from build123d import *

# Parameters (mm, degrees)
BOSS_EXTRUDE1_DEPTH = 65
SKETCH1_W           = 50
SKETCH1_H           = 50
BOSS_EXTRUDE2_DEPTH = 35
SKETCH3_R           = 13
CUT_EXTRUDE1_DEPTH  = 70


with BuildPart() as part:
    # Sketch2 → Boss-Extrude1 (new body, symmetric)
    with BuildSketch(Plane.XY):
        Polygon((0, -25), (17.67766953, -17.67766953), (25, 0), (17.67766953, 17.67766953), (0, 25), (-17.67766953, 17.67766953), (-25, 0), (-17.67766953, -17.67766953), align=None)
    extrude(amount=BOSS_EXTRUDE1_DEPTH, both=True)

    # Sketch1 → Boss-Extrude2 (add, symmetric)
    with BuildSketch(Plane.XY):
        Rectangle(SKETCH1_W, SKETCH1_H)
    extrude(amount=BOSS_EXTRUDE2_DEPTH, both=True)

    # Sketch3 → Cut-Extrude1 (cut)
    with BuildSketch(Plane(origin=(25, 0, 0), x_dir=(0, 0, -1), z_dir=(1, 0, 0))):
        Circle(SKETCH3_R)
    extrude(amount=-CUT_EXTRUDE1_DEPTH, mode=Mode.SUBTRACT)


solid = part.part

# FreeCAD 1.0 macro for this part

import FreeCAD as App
import Part
import Sketcher
Q = App.Units.Quantity

doc = App.newDocument("Part")
params = doc.addObject("Spreadsheet::Sheet", "Params")
for row, (alias, value) in enumerate([
    ("pad1_length", "130 mm"),
    ("sketch2_width", "50 mm"),
    ("pad2_length", "70 mm"),
    ("sketch3_diameter", "26 mm"),
    ("pocket1_length", "70 mm"),
], start=1):
    params.set(f"A{row}", alias)
    params.set(f"B{row}", "=" + value)
    params.setAlias(f"B{row}", alias)

body = doc.addObject("PartDesign::Body", "Body")

sketch1 = doc.addObject("Sketcher::SketchObject", "Sketch")
body.addObject(sketch1)
sketch1.AttachmentSupport = (doc.XY_Plane, [""])
sketch1.MapMode = "FlatFace"
sketch1.addGeometry(Part.LineSegment(App.Vector(0, -25, 0), App.Vector(17.67767, -17.67767, 0)), False)
sketch1.addGeometry(Part.LineSegment(App.Vector(17.67767, -17.67767, 0), App.Vector(25, 0, 0)), False)
sketch1.addGeometry(Part.LineSegment(App.Vector(25, 0, 0), App.Vector(17.67767, 17.67767, 0)), False)
sketch1.addGeometry(Part.LineSegment(App.Vector(17.67767, 17.67767, 0), App.Vector(0, 25, 0)), False)
sketch1.addGeometry(Part.LineSegment(App.Vector(0, 25, 0), App.Vector(-17.67767, 17.67767, 0)), False)
sketch1.addGeometry(Part.LineSegment(App.Vector(-17.67767, 17.67767, 0), App.Vector(-25, 0, 0)), False)
sketch1.addGeometry(Part.LineSegment(App.Vector(-25, 0, 0), App.Vector(-17.67767, -17.67767, 0)), False)
sketch1.addGeometry(Part.LineSegment(App.Vector(-17.67767, -17.67767, 0), App.Vector(0, -25, 0)), False)
sketch1.addConstraint(Sketcher.Constraint("Coincident", 0, 2, 1, 1))
sketch1.addConstraint(Sketcher.Constraint("Coincident", 1, 2, 2, 1))
sketch1.addConstraint(Sketcher.Constraint("Coincident", 2, 2, 3, 1))
sketch1.addConstraint(Sketcher.Constraint("Coincident", 3, 2, 4, 1))
sketch1.addConstraint(Sketcher.Constraint("Coincident", 4, 2, 5, 1))
sketch1.addConstraint(Sketcher.Constraint("Coincident", 5, 2, 6, 1))
sketch1.addConstraint(Sketcher.Constraint("Coincident", 6, 2, 7, 1))
sketch1.addConstraint(Sketcher.Constraint("Coincident", 7, 2, 0, 1))
sketch1.addConstraint(Sketcher.Constraint("Symmetric", 0, 2, 4, 2, -1, 1))
sketch1.addConstraint(Sketcher.Constraint("Symmetric", 1, 2, 5, 2, -1, 1))
sketch1.addConstraint(Sketcher.Constraint("Symmetric", 2, 2, 6, 2, -1, 1))
sketch1.addConstraint(Sketcher.Constraint("Symmetric", 3, 2, 7, 2, -1, 1))
sketch1.addConstraint(Sketcher.Constraint("Symmetric", 2, 2, 4, 2, -2))
sketch1.addConstraint(Sketcher.Constraint("PointOnObject", 1, 2, -1))
sketch1.addConstraint(Sketcher.Constraint("PointOnObject", 3, 2, -2))
sketch1.addConstraint(Sketcher.Constraint("Perpendicular", 0, 2))
sketch1.addConstraint(Sketcher.Constraint("Equal", 0, 1))
sketch1.addConstraint(Sketcher.Constraint("DistanceX", -1, 1, 1, 2, 25.0))
sketch1.addConstraint(Sketcher.Constraint("Angle", 0, Q("22.5 deg")))
pad1 = doc.addObject("PartDesign::Pad", "Pad")
body.addObject(pad1)
pad1.Profile = sketch1
pad1.setExpression("Length", "Params.pad1_length")
pad1.Midplane = True

sketch2 = doc.addObject("Sketcher::SketchObject", "Sketch001")
body.addObject(sketch2)
sketch2.AttachmentSupport = (doc.XY_Plane, [""])
sketch2.MapMode = "FlatFace"
sketch2.addGeometry(Part.LineSegment(App.Vector(-25, 25, 0), App.Vector(-25, -25, 0)), False)
sketch2.addGeometry(Part.LineSegment(App.Vector(-25, -25, 0), App.Vector(25, -25, 0)), False)
sketch2.addGeometry(Part.LineSegment(App.Vector(25, -25, 0), App.Vector(25, 25, 0)), False)
sketch2.addGeometry(Part.LineSegment(App.Vector(25, 25, 0), App.Vector(-25, 25, 0)), False)
sketch2.addConstraint(Sketcher.Constraint("Coincident", 0, 2, 1, 1))
sketch2.addConstraint(Sketcher.Constraint("Coincident", 1, 2, 2, 1))
sketch2.addConstraint(Sketcher.Constraint("Coincident", 2, 2, 3, 1))
sketch2.addConstraint(Sketcher.Constraint("Coincident", 3, 2, 0, 1))
sketch2.addConstraint(Sketcher.Constraint("Vertical", 0))
sketch2.addConstraint(Sketcher.Constraint("Horizontal", 1))
sketch2.addConstraint(Sketcher.Constraint("Vertical", 2))
sketch2.addConstraint(Sketcher.Constraint("Horizontal", 3))
sketch2.addConstraint(Sketcher.Constraint("Symmetric", 0, 2, 2, 2, -1, 1))
sketch2.addConstraint(Sketcher.Constraint("Equal", 3, 0))
sketch2.addConstraint(Sketcher.Constraint("DistanceX", 1, 1, 1, 2, 50.0))
sketch2.setExpression("Constraints[10]", "Params.sketch2_width")
pad2 = doc.addObject("PartDesign::Pad", "Pad001")
body.addObject(pad2)
pad2.Profile = sketch2
pad2.setExpression("Length", "Params.pad2_length")
pad2.Midplane = True

sketch3 = doc.addObject("Sketcher::SketchObject", "Sketch002")
body.addObject(sketch3)
sketch3.AttachmentSupport = (doc.YZ_Plane, [""])
sketch3.MapMode = "FlatFace"
sketch3.AttachmentOffset = App.Placement(App.Vector(0, 0, 25), App.Rotation())
sketch3.addGeometry(Part.Circle(App.Vector(0, 0, 0), App.Vector(0, 0, 1), 13), False)
sketch3.addConstraint(Sketcher.Constraint("Coincident", 0, 3, -1, 1))
sketch3.addConstraint(Sketcher.Constraint("Diameter", 0, 26.0))
sketch3.setExpression("Constraints[1]", "Params.sketch3_diameter")
pocket1 = doc.addObject("PartDesign::Pocket", "Pocket")
body.addObject(pocket1)
pocket1.Profile = sketch3
pocket1.setExpression("Length", "Params.pocket1_length")

doc.recompute()
